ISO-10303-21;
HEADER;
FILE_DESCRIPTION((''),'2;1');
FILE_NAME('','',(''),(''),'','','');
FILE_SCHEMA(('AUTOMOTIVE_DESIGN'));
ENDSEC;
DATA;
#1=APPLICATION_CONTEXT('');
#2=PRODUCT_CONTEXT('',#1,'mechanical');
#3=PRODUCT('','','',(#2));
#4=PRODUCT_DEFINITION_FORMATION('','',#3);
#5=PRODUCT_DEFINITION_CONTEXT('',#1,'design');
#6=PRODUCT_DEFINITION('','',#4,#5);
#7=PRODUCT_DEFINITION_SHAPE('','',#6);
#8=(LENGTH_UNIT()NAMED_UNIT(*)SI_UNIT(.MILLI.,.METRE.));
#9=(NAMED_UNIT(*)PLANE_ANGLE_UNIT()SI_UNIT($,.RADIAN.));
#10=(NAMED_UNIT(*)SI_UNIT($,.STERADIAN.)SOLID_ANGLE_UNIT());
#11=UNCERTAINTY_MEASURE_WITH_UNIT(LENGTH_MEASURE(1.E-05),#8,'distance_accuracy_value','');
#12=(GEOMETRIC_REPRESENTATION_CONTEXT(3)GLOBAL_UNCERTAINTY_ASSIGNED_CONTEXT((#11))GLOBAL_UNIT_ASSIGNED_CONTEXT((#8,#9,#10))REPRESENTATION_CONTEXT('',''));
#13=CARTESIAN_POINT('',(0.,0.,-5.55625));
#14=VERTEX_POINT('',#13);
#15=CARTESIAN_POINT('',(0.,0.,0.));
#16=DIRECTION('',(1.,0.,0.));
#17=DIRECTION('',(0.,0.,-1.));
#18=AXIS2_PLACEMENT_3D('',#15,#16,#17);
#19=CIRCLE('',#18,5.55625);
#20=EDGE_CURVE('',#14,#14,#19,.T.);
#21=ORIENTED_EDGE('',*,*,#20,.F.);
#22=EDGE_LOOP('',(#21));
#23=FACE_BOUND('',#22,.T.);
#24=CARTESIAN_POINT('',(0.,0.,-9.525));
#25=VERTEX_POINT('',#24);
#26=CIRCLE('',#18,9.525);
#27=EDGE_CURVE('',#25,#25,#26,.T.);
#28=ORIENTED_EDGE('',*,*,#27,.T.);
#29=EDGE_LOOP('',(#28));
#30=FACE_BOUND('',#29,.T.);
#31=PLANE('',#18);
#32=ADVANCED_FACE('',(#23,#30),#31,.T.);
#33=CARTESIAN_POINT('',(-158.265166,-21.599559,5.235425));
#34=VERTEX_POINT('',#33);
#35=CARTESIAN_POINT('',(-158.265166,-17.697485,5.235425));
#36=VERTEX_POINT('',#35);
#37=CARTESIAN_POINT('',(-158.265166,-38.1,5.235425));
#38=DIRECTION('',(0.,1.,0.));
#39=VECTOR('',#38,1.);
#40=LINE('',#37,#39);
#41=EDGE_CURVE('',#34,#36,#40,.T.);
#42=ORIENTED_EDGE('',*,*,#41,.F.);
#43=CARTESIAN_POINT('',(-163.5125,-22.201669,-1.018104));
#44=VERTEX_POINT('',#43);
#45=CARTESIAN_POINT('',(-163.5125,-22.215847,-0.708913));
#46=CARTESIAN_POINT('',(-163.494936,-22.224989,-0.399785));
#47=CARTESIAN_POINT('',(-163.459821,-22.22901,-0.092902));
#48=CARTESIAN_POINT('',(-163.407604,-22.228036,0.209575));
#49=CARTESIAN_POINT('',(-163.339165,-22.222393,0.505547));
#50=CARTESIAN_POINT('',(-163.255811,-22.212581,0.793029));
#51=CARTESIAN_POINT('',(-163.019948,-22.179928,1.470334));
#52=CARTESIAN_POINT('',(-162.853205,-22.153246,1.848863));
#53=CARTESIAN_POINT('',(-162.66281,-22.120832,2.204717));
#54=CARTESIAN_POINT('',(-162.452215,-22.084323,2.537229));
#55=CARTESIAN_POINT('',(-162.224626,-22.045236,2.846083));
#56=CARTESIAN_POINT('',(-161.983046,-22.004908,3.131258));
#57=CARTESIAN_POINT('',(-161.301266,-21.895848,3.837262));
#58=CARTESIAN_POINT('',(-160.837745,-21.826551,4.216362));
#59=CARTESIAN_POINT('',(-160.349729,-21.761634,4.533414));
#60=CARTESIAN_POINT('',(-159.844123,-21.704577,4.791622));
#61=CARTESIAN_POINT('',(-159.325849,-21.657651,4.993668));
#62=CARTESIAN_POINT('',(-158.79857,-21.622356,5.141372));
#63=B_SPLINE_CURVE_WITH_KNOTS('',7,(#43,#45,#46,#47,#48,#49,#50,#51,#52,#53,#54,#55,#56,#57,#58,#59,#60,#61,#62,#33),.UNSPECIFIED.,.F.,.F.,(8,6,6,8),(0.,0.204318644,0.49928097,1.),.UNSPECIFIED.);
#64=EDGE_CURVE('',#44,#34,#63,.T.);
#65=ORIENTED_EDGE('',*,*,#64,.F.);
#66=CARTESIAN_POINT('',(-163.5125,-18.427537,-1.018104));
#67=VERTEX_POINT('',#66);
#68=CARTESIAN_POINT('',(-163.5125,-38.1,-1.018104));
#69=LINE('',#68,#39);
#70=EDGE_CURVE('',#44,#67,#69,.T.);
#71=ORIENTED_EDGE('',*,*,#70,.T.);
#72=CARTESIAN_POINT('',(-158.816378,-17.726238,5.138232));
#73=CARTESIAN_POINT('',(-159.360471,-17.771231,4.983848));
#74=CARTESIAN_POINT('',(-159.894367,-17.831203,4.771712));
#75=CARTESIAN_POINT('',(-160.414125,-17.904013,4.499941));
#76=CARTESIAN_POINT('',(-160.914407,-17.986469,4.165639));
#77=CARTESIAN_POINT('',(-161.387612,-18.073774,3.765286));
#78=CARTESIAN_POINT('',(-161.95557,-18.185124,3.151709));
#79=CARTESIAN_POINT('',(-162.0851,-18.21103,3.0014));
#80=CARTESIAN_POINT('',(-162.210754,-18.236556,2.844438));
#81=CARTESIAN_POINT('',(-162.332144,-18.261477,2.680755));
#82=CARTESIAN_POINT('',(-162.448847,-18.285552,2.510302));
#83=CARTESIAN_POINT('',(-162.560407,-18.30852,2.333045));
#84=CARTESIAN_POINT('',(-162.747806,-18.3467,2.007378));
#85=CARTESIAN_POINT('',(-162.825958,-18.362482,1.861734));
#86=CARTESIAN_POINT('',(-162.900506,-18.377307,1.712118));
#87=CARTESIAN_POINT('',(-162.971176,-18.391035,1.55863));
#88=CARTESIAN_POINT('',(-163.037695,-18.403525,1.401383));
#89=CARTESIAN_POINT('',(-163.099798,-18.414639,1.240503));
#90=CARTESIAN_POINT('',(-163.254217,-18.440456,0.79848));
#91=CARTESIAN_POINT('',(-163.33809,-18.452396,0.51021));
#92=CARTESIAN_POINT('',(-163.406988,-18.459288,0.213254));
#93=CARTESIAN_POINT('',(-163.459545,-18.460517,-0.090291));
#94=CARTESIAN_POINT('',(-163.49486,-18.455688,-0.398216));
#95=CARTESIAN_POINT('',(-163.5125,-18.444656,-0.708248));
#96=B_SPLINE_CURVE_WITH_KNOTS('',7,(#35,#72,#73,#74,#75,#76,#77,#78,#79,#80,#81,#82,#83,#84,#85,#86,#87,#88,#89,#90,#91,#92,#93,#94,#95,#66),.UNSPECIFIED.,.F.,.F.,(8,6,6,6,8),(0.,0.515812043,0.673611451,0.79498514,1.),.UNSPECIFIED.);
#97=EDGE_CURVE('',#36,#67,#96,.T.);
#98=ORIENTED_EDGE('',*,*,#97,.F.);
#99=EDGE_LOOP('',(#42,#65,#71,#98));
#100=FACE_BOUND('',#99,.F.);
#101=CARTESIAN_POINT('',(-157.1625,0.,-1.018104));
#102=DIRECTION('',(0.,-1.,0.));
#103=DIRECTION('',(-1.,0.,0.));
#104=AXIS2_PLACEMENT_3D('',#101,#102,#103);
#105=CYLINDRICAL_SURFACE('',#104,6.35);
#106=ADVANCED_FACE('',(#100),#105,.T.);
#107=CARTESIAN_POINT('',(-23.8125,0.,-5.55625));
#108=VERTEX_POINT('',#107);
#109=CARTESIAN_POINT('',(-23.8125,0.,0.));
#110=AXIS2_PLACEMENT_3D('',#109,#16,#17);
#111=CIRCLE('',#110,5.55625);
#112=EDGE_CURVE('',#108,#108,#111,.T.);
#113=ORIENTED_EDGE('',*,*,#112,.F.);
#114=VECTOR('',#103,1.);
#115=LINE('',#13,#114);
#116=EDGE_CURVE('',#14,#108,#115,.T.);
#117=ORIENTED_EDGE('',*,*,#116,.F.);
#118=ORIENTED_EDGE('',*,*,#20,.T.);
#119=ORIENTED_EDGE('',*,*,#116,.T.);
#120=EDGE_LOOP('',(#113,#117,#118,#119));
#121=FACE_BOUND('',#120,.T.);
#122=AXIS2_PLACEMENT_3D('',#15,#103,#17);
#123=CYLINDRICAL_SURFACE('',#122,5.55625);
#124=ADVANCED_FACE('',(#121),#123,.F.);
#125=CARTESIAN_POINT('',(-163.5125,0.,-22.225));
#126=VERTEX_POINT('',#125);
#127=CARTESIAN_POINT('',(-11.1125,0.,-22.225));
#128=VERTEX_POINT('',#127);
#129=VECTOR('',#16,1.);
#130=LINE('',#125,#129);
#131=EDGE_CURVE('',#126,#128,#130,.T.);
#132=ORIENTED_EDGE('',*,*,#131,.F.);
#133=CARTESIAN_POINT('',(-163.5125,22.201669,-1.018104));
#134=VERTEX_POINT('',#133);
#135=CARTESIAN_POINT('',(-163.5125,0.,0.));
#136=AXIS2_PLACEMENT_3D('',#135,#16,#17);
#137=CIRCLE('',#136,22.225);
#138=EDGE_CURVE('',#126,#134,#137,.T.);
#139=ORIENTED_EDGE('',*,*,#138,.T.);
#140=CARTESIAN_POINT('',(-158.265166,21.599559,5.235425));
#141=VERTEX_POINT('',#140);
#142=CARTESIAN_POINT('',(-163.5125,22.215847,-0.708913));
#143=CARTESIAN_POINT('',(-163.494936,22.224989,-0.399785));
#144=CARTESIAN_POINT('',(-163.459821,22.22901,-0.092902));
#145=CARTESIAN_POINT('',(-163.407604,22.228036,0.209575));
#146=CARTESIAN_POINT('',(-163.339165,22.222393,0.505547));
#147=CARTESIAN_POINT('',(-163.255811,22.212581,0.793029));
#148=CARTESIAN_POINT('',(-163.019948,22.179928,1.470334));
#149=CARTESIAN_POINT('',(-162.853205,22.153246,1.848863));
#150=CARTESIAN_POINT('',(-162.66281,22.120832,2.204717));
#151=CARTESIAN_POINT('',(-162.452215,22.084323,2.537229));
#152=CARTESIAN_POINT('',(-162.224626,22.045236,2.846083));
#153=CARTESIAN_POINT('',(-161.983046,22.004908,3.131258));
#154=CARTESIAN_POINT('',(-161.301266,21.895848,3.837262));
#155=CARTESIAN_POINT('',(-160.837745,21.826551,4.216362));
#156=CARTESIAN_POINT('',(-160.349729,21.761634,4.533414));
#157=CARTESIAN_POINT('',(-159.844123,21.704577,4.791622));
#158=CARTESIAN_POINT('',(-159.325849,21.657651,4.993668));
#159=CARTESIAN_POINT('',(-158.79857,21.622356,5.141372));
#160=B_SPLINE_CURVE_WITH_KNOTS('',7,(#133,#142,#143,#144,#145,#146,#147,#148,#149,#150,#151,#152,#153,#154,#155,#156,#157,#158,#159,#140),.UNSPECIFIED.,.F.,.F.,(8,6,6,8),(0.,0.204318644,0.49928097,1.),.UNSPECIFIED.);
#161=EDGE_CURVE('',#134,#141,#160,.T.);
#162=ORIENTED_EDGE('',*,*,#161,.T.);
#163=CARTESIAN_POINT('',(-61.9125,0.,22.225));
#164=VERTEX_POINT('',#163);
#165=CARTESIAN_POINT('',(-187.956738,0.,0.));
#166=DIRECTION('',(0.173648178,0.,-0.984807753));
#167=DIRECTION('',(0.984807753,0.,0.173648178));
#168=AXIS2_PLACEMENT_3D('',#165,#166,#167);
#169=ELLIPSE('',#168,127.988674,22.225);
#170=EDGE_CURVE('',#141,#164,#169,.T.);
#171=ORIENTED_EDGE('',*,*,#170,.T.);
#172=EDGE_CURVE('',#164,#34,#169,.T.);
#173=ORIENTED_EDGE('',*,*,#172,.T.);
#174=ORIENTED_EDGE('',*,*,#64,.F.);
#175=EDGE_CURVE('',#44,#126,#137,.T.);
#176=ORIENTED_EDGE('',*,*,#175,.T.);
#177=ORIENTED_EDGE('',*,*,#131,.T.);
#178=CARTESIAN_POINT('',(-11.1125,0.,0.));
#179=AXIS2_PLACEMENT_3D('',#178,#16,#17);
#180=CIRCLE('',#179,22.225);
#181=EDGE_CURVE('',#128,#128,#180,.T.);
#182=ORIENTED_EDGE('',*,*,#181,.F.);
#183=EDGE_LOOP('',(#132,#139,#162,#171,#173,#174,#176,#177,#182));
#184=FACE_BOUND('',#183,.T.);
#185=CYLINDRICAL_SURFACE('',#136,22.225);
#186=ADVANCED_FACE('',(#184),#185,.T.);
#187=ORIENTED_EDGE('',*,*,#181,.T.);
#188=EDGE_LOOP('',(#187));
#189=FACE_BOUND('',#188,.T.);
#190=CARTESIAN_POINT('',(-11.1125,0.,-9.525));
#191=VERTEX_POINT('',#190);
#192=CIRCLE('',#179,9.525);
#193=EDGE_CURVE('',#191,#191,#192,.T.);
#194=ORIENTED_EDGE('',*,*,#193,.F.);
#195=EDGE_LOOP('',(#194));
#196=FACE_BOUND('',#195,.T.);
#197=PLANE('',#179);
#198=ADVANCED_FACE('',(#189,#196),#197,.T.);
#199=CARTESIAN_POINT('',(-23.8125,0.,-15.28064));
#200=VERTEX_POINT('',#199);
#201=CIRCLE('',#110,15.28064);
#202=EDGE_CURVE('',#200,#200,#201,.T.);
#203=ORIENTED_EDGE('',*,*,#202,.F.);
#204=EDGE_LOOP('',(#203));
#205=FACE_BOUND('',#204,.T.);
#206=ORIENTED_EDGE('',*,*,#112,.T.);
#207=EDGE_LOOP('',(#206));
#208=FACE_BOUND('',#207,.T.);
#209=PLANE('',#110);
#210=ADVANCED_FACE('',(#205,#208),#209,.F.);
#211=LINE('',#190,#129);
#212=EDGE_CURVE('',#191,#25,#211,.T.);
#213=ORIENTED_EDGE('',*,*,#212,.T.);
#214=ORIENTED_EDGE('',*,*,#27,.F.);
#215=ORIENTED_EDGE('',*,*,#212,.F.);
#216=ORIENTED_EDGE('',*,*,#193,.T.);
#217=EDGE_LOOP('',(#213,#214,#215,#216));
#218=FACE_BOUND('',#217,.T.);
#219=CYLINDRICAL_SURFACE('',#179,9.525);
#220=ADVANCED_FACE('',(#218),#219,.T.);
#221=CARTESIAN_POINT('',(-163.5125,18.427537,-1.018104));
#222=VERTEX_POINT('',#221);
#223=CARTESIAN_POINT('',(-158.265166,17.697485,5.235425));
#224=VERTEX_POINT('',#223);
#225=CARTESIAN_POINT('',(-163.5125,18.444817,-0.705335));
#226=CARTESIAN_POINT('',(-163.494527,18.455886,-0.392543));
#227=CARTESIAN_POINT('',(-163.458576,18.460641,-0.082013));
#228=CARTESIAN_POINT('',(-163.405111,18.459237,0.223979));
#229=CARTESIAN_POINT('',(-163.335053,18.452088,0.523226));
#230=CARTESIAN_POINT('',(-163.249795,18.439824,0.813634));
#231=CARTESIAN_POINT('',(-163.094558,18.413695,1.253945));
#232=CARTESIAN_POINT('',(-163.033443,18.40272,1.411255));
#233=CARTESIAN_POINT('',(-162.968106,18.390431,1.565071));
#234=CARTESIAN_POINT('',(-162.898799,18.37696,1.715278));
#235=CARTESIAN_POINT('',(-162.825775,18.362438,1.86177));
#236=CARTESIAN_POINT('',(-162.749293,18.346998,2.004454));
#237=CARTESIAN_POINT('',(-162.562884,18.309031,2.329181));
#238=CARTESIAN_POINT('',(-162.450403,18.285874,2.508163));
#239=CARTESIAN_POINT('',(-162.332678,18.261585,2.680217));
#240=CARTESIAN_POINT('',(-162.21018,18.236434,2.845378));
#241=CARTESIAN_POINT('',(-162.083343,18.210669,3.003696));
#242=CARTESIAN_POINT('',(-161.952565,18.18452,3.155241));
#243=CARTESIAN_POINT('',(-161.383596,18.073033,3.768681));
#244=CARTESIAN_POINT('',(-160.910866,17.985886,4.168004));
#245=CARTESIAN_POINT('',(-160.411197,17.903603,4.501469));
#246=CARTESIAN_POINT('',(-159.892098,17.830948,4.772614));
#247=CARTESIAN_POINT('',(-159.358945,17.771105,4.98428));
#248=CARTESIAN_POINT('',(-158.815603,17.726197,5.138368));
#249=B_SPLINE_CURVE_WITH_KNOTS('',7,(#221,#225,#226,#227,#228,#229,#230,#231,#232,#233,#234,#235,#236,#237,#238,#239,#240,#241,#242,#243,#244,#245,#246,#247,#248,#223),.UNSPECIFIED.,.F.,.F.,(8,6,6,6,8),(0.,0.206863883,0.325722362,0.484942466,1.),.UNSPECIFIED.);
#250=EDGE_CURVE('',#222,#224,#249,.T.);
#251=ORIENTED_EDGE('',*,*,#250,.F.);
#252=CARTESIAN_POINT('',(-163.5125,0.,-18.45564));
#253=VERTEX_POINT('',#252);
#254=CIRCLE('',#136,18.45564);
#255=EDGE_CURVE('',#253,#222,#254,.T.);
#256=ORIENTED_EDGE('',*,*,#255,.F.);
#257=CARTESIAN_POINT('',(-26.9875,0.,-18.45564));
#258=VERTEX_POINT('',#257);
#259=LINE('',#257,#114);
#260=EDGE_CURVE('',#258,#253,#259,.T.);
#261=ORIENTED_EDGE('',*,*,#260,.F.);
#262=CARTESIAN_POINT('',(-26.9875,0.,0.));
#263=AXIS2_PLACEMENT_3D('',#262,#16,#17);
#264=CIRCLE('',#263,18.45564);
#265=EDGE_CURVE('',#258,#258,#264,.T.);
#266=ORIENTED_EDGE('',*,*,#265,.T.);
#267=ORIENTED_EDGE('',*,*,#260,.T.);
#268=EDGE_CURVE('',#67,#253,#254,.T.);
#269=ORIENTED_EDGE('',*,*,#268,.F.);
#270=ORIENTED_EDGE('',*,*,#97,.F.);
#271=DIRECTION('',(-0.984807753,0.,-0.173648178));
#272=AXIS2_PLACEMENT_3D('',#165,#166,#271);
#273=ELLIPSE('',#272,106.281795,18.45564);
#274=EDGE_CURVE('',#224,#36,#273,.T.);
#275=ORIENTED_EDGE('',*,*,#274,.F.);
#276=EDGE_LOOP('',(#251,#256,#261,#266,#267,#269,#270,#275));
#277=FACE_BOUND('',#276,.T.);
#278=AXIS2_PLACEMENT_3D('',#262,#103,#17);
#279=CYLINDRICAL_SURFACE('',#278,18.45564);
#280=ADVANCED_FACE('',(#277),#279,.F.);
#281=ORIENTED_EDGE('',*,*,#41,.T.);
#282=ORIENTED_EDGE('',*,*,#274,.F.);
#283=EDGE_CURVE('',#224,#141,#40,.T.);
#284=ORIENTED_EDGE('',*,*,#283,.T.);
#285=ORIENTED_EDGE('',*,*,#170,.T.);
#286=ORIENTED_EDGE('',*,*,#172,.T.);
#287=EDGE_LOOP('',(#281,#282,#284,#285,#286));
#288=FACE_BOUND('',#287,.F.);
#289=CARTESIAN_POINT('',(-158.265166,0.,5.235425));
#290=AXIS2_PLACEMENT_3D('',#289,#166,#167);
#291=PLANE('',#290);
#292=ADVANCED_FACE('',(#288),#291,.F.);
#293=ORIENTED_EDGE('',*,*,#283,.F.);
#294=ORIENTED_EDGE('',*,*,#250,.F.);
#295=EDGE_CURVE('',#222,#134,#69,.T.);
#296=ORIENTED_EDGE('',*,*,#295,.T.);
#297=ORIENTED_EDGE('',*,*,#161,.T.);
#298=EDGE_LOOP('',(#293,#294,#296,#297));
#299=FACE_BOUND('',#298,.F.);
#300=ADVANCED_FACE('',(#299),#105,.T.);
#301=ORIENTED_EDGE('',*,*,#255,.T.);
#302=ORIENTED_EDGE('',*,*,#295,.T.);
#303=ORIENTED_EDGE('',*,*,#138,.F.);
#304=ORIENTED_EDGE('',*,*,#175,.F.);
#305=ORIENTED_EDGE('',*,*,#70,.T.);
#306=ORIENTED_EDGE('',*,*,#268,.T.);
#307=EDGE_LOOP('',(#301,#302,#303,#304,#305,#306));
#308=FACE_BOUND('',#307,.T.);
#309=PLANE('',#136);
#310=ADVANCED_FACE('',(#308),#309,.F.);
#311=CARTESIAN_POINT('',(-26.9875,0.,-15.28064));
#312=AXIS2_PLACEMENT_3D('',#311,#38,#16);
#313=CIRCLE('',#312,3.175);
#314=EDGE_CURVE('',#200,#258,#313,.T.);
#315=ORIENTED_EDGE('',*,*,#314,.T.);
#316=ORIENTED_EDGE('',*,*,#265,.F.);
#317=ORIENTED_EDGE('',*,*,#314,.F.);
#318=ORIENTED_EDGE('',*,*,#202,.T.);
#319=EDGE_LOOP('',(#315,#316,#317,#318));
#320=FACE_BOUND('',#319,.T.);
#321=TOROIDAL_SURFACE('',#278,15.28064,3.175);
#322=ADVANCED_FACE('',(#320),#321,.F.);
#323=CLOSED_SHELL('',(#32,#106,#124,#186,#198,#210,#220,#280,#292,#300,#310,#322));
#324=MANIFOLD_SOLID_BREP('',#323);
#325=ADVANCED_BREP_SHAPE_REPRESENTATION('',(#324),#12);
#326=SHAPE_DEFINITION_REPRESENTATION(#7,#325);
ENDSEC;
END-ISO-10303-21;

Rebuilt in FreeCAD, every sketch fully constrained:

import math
import FreeCAD as App
import Part
import Sketcher

V = App.Vector
Q = App.Units.Quantity

doc = App.newDocument("Part")
body = doc.addObject("PartDesign::Body", "Body")

# Sketch on XZ plane
sketch1 = body.newObject("Sketcher::SketchObject", "Sketch")
sketch1.AttachmentSupport = (doc.getObject("XZ_Plane"), [""])
sketch1.MapMode = "FlatFace"
sketch1.addGeometry(Part.LineSegment(V(-11.1, -9.5, 0), V(0, -9.5, 0)), False)
sketch1.addGeometry(Part.LineSegment(V(0, -9.5, 0), V(0, -5.6, 0)), False)
sketch1.addGeometry(Part.LineSegment(V(0, -5.6, 0), V(-23.8, -5.6, 0)), False)
sketch1.addGeometry(Part.LineSegment(V(-23.8, -5.6, 0), V(-23.8, -15.3, 0)), False)
sketch1.addGeometry(Part.ArcOfCircle(Part.Circle(V(-27, -15.3, 0), V(0, 0, 1), 3.2), math.radians(-90), math.radians(0)), False)
sketch1.addGeometry(Part.LineSegment(V(-27, -18.5, 0), V(-163.5, -18.5, 0)), False)
sketch1.addGeometry(Part.LineSegment(V(-163.5, -18.5, 0), V(-163.5, -22.2, 0)), False)
sketch1.addGeometry(Part.LineSegment(V(-163.5, -22.2, 0), V(-11.1, -22.2, 0)), False)
sketch1.addGeometry(Part.LineSegment(V(-11.1, -22.2, 0), V(-11.1, -9.5, 0)), False)
sketch1.addConstraint(Sketcher.Constraint("Coincident", 0, 2, 1, 1))
sketch1.addConstraint(Sketcher.Constraint("Coincident", 1, 2, 2, 1))
sketch1.addConstraint(Sketcher.Constraint("Coincident", 2, 2, 3, 1))
sketch1.addConstraint(Sketcher.Constraint("Tangent", 3, 2, 4, 2))
sketch1.addConstraint(Sketcher.Constraint("Tangent", 4, 1, 5, 1))
sketch1.addConstraint(Sketcher.Constraint("Coincident", 5, 2, 6, 1))
sketch1.addConstraint(Sketcher.Constraint("Coincident", 6, 2, 7, 1))
sketch1.addConstraint(Sketcher.Constraint("Coincident", 7, 2, 8, 1))
sketch1.addConstraint(Sketcher.Constraint("Coincident", 8, 2, 0, 1))
sketch1.addConstraint(Sketcher.Constraint("Horizontal", 0))
sketch1.addConstraint(Sketcher.Constraint("Vertical", 1))
sketch1.addConstraint(Sketcher.Constraint("Horizontal", 2))
sketch1.addConstraint(Sketcher.Constraint("Vertical", 3))
sketch1.addConstraint(Sketcher.Constraint("Horizontal", 5))
sketch1.addConstraint(Sketcher.Constraint("Vertical", 6))
sketch1.addConstraint(Sketcher.Constraint("Horizontal", 7))
sketch1.addConstraint(Sketcher.Constraint("Vertical", 8))
sketch1.addConstraint(Sketcher.Constraint("PointOnObject", 0, 2, -2))
sketch1.addConstraint(Sketcher.Constraint("DistanceX", 7, 1, 7, 2, Q("6 in")))
sketch1.addConstraint(Sketcher.Constraint("DistanceY", 8, 1, 8, 2, Q("0.5 in")))
sketch1.addConstraint(Sketcher.Constraint("Radius", 4, Q("0.125 in")))
sketch1.addConstraint(Sketcher.Constraint("DistanceX", 5, 2, 3, 2, Q("5.5 in")))
sketch1.addConstraint(Sketcher.Constraint("DistanceX", 0, 1, 0, 2, Q("0.4375 in")))
sketch1.addConstraint(Sketcher.Constraint("DistanceY", 1, 1, 1, 2, Q("0.15625 in")))
sketch1.addConstraint(Sketcher.Constraint("DistanceY", 6, 2, 6, 1, Q("0.1484 in")))
sketch1.addConstraint(Sketcher.Constraint("DistanceY", 0, 2, -1, 1, Q("0.375 in")))
revolution = body.newObject("PartDesign::Revolution", "Revolution")
revolution.Profile = sketch1
revolution.ReferenceAxis = (sketch1, ["H_Axis"])
revolution.Angle = 360

# Sketch on XZ plane
sketch2 = body.newObject("Sketcher::SketchObject", "Sketch001")
sketch2.AttachmentSupport = (doc.getObject("XZ_Plane"), [""])
sketch2.MapMode = "FlatFace"
sketch2.addGeometry(Part.LineSegment(V(-62, 22, 0), V(-170, 22, 0)), False)
sketch2.addGeometry(Part.LineSegment(V(-170, 22, 0), V(-170, -22, 0)), False)
sketch2.addGeometry(Part.LineSegment(V(-170, -22, 0), V(-164, -22, 0)), False)
sketch2.addGeometry(Part.LineSegment(V(-164, -22, 0), V(-164, -1, 0)), False)
sketch2.addGeometry(Part.ArcOfCircle(Part.Circle(V(-157, -1, 0), V(0, 0, 1), 6), math.radians(100), math.radians(180)), False)
sketch2.addGeometry(Part.LineSegment(V(-158, 5, 0), V(-62, 22, 0)), False)
sketch2.addConstraint(Sketcher.Constraint("Coincident", 0, 2, 1, 1))
sketch2.addConstraint(Sketcher.Constraint("Coincident", 1, 2, 2, 1))
sketch2.addConstraint(Sketcher.Constraint("Coincident", 2, 2, 3, 1))
sketch2.addConstraint(Sketcher.Constraint("Tangent", 3, 2, 4, 2))
sketch2.addConstraint(Sketcher.Constraint("Tangent", 4, 1, 5, 1))
sketch2.addConstraint(Sketcher.Constraint("Coincident", 5, 2, 0, 1))
sketch2.addConstraint(Sketcher.Constraint("Horizontal", 0))
sketch2.addConstraint(Sketcher.Constraint("Vertical", 1))
sketch2.addConstraint(Sketcher.Constraint("Horizontal", 2))
sketch2.addConstraint(Sketcher.Constraint("Vertical", 3))
sketch2.addConstraint(Sketcher.Constraint("Radius", 4, Q("0.25 in")))
sketch2.addConstraint(Sketcher.Constraint("Angle", 5, Q("10 deg")))
sketch2.addConstraint(Sketcher.Constraint("DistanceX", 3, 2, 5, 2, Q("4 in")))
sketch2.addConstraint(Sketcher.Constraint("DistanceX", 0, 2, 0, 1, Q("4.25 in")))
sketch2.addConstraint(Sketcher.Constraint("DistanceY", 1, 2, 1, 1, Q("1.75 in")))
sketch2.addConstraint(Sketcher.Constraint("DistanceX", 4, 3, -1, 1, Q("6.1875 in")))
sketch2.addConstraint(Sketcher.Constraint("DistanceY", -1, 1, 0, 2, Q("0.875 in")))
pocket1 = body.newObject("PartDesign::Pocket", "Pocket")
pocket1.Profile = sketch2
pocket1.Length = Q("3 in")
pocket1.Midplane = True

doc.recompute()
